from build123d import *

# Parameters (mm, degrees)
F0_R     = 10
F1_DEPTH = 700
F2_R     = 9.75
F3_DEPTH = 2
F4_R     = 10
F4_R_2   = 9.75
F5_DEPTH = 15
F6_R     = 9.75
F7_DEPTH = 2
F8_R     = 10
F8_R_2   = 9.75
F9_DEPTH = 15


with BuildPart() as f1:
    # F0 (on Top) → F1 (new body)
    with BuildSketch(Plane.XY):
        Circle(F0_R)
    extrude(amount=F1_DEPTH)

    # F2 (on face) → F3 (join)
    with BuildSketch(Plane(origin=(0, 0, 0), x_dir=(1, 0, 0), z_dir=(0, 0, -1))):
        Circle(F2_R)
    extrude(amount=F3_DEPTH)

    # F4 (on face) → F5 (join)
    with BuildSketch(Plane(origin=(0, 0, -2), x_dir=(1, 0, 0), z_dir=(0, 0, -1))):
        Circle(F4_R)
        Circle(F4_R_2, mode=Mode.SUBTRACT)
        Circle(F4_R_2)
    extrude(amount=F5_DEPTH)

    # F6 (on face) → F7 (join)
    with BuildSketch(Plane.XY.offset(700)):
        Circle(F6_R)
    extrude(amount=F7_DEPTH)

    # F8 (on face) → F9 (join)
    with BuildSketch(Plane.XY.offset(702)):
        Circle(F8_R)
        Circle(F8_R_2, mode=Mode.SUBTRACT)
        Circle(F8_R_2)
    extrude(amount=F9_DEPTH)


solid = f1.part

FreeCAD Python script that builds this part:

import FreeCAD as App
import Part
import Sketcher
from FreeCAD import Vector
Q = App.Units.Quantity

doc = App.newDocument("Part")
body = doc.addObject("PartDesign::Body", "Body")

# Sketch on XY plane
sketch1 = body.newObject("Sketcher::SketchObject", "Sketch")
sketch1.AttachmentSupport = (doc.getObject("XY_Plane"), [""])
sketch1.MapMode = "FlatFace"
sketch1.addGeometry(Part.Circle(Vector(0, 0, 0), Vector(0, 0, 1), 10), False)
sketch1.addConstraint(Sketcher.Constraint("Coincident", 0, 3, -1, 1))
sketch1.addConstraint(Sketcher.Constraint("Diameter", 0, Q("20 mm")))
pad1 = body.newObject("PartDesign::Pad", "Pad")
pad1.Profile = sketch1
pad1.Length = 700

# Sketch on XY plane
sketch2 = body.newObject("Sketcher::SketchObject", "Sketch001")
sketch2.AttachmentSupport = (doc.getObject("XY_Plane"), [""])
sketch2.MapMode = "FlatFace"
sketch2.addGeometry(Part.Circle(Vector(0, 0, 0), Vector(0, 0, 1), 10), False)
sketch2.addConstraint(Sketcher.Constraint("Coincident", 0, 3, -1, 1))
sketch2.addConstraint(Sketcher.Constraint("Diameter", 0, Q("19.5 mm")))
pad2 = body.newObject("PartDesign::Pad", "Pad001")
pad2.Profile = sketch2
pad2.Length = 2
pad2.Reversed = True

# Sketch on XY plane
sketch3 = body.newObject("Sketcher::SketchObject", "Sketch002")
sketch3.AttachmentSupport = (doc.getObject("XY_Plane"), [""])
sketch3.MapMode = "FlatFace"
sketch3.AttachmentOffset = App.Placement(Vector(0, 0, -2), App.Rotation())
sketch3.addGeometry(Part.Circle(Vector(0, 0, 0), Vector(0, 0, 1), 10), False)
sketch3.addConstraint(Sketcher.Constraint("Coincident", 0, 3, -1, 1))
sketch3.addConstraint(Sketcher.Constraint("Diameter", 0, Q("20 mm")))
pad3 = body.newObject("PartDesign::Pad", "Pad002")
pad3.Profile = sketch3
pad3.Length = 15
pad3.Reversed = True

# Sketch on XY plane
sketch4 = body.newObject("Sketcher::SketchObject", "Sketch003")
sketch4.AttachmentSupport = (doc.getObject("XY_Plane"), [""])
sketch4.MapMode = "FlatFace"
sketch4.AttachmentOffset = App.Placement(Vector(0, 0, 700), App.Rotation())
sketch4.addGeometry(Part.Circle(Vector(0, 0, 0), Vector(0, 0, 1), 10), False)
sketch4.addConstraint(Sketcher.Constraint("Coincident", 0, 3, -1, 1))
sketch4.addConstraint(Sketcher.Constraint("Diameter", 0, Q("19.5 mm")))
pad4 = body.newObject("PartDesign::Pad", "Pad003")
pad4.Profile = sketch4
pad4.Length = 2

# Sketch on XY plane
sketch5 = body.newObject("Sketcher::SketchObject", "Sketch004")
sketch5.AttachmentSupport = (doc.getObject("XY_Plane"), [""])
sketch5.MapMode = "FlatFace"
sketch5.AttachmentOffset = App.Placement(Vector(0, 0, 702), App.Rotation())
sketch5.addGeometry(Part.Circle(Vector(0, 0, 0), Vector(0, 0, 1), 10), False)
sketch5.addConstraint(Sketcher.Constraint("Coincident", 0, 3, -1, 1))
sketch5.addConstraint(Sketcher.Constraint("Diameter", 0, Q("20 mm")))
pad5 = body.newObject("PartDesign::Pad", "Pad004")
pad5.Profile = sketch5
pad5.Length = 15

doc.recompute()
